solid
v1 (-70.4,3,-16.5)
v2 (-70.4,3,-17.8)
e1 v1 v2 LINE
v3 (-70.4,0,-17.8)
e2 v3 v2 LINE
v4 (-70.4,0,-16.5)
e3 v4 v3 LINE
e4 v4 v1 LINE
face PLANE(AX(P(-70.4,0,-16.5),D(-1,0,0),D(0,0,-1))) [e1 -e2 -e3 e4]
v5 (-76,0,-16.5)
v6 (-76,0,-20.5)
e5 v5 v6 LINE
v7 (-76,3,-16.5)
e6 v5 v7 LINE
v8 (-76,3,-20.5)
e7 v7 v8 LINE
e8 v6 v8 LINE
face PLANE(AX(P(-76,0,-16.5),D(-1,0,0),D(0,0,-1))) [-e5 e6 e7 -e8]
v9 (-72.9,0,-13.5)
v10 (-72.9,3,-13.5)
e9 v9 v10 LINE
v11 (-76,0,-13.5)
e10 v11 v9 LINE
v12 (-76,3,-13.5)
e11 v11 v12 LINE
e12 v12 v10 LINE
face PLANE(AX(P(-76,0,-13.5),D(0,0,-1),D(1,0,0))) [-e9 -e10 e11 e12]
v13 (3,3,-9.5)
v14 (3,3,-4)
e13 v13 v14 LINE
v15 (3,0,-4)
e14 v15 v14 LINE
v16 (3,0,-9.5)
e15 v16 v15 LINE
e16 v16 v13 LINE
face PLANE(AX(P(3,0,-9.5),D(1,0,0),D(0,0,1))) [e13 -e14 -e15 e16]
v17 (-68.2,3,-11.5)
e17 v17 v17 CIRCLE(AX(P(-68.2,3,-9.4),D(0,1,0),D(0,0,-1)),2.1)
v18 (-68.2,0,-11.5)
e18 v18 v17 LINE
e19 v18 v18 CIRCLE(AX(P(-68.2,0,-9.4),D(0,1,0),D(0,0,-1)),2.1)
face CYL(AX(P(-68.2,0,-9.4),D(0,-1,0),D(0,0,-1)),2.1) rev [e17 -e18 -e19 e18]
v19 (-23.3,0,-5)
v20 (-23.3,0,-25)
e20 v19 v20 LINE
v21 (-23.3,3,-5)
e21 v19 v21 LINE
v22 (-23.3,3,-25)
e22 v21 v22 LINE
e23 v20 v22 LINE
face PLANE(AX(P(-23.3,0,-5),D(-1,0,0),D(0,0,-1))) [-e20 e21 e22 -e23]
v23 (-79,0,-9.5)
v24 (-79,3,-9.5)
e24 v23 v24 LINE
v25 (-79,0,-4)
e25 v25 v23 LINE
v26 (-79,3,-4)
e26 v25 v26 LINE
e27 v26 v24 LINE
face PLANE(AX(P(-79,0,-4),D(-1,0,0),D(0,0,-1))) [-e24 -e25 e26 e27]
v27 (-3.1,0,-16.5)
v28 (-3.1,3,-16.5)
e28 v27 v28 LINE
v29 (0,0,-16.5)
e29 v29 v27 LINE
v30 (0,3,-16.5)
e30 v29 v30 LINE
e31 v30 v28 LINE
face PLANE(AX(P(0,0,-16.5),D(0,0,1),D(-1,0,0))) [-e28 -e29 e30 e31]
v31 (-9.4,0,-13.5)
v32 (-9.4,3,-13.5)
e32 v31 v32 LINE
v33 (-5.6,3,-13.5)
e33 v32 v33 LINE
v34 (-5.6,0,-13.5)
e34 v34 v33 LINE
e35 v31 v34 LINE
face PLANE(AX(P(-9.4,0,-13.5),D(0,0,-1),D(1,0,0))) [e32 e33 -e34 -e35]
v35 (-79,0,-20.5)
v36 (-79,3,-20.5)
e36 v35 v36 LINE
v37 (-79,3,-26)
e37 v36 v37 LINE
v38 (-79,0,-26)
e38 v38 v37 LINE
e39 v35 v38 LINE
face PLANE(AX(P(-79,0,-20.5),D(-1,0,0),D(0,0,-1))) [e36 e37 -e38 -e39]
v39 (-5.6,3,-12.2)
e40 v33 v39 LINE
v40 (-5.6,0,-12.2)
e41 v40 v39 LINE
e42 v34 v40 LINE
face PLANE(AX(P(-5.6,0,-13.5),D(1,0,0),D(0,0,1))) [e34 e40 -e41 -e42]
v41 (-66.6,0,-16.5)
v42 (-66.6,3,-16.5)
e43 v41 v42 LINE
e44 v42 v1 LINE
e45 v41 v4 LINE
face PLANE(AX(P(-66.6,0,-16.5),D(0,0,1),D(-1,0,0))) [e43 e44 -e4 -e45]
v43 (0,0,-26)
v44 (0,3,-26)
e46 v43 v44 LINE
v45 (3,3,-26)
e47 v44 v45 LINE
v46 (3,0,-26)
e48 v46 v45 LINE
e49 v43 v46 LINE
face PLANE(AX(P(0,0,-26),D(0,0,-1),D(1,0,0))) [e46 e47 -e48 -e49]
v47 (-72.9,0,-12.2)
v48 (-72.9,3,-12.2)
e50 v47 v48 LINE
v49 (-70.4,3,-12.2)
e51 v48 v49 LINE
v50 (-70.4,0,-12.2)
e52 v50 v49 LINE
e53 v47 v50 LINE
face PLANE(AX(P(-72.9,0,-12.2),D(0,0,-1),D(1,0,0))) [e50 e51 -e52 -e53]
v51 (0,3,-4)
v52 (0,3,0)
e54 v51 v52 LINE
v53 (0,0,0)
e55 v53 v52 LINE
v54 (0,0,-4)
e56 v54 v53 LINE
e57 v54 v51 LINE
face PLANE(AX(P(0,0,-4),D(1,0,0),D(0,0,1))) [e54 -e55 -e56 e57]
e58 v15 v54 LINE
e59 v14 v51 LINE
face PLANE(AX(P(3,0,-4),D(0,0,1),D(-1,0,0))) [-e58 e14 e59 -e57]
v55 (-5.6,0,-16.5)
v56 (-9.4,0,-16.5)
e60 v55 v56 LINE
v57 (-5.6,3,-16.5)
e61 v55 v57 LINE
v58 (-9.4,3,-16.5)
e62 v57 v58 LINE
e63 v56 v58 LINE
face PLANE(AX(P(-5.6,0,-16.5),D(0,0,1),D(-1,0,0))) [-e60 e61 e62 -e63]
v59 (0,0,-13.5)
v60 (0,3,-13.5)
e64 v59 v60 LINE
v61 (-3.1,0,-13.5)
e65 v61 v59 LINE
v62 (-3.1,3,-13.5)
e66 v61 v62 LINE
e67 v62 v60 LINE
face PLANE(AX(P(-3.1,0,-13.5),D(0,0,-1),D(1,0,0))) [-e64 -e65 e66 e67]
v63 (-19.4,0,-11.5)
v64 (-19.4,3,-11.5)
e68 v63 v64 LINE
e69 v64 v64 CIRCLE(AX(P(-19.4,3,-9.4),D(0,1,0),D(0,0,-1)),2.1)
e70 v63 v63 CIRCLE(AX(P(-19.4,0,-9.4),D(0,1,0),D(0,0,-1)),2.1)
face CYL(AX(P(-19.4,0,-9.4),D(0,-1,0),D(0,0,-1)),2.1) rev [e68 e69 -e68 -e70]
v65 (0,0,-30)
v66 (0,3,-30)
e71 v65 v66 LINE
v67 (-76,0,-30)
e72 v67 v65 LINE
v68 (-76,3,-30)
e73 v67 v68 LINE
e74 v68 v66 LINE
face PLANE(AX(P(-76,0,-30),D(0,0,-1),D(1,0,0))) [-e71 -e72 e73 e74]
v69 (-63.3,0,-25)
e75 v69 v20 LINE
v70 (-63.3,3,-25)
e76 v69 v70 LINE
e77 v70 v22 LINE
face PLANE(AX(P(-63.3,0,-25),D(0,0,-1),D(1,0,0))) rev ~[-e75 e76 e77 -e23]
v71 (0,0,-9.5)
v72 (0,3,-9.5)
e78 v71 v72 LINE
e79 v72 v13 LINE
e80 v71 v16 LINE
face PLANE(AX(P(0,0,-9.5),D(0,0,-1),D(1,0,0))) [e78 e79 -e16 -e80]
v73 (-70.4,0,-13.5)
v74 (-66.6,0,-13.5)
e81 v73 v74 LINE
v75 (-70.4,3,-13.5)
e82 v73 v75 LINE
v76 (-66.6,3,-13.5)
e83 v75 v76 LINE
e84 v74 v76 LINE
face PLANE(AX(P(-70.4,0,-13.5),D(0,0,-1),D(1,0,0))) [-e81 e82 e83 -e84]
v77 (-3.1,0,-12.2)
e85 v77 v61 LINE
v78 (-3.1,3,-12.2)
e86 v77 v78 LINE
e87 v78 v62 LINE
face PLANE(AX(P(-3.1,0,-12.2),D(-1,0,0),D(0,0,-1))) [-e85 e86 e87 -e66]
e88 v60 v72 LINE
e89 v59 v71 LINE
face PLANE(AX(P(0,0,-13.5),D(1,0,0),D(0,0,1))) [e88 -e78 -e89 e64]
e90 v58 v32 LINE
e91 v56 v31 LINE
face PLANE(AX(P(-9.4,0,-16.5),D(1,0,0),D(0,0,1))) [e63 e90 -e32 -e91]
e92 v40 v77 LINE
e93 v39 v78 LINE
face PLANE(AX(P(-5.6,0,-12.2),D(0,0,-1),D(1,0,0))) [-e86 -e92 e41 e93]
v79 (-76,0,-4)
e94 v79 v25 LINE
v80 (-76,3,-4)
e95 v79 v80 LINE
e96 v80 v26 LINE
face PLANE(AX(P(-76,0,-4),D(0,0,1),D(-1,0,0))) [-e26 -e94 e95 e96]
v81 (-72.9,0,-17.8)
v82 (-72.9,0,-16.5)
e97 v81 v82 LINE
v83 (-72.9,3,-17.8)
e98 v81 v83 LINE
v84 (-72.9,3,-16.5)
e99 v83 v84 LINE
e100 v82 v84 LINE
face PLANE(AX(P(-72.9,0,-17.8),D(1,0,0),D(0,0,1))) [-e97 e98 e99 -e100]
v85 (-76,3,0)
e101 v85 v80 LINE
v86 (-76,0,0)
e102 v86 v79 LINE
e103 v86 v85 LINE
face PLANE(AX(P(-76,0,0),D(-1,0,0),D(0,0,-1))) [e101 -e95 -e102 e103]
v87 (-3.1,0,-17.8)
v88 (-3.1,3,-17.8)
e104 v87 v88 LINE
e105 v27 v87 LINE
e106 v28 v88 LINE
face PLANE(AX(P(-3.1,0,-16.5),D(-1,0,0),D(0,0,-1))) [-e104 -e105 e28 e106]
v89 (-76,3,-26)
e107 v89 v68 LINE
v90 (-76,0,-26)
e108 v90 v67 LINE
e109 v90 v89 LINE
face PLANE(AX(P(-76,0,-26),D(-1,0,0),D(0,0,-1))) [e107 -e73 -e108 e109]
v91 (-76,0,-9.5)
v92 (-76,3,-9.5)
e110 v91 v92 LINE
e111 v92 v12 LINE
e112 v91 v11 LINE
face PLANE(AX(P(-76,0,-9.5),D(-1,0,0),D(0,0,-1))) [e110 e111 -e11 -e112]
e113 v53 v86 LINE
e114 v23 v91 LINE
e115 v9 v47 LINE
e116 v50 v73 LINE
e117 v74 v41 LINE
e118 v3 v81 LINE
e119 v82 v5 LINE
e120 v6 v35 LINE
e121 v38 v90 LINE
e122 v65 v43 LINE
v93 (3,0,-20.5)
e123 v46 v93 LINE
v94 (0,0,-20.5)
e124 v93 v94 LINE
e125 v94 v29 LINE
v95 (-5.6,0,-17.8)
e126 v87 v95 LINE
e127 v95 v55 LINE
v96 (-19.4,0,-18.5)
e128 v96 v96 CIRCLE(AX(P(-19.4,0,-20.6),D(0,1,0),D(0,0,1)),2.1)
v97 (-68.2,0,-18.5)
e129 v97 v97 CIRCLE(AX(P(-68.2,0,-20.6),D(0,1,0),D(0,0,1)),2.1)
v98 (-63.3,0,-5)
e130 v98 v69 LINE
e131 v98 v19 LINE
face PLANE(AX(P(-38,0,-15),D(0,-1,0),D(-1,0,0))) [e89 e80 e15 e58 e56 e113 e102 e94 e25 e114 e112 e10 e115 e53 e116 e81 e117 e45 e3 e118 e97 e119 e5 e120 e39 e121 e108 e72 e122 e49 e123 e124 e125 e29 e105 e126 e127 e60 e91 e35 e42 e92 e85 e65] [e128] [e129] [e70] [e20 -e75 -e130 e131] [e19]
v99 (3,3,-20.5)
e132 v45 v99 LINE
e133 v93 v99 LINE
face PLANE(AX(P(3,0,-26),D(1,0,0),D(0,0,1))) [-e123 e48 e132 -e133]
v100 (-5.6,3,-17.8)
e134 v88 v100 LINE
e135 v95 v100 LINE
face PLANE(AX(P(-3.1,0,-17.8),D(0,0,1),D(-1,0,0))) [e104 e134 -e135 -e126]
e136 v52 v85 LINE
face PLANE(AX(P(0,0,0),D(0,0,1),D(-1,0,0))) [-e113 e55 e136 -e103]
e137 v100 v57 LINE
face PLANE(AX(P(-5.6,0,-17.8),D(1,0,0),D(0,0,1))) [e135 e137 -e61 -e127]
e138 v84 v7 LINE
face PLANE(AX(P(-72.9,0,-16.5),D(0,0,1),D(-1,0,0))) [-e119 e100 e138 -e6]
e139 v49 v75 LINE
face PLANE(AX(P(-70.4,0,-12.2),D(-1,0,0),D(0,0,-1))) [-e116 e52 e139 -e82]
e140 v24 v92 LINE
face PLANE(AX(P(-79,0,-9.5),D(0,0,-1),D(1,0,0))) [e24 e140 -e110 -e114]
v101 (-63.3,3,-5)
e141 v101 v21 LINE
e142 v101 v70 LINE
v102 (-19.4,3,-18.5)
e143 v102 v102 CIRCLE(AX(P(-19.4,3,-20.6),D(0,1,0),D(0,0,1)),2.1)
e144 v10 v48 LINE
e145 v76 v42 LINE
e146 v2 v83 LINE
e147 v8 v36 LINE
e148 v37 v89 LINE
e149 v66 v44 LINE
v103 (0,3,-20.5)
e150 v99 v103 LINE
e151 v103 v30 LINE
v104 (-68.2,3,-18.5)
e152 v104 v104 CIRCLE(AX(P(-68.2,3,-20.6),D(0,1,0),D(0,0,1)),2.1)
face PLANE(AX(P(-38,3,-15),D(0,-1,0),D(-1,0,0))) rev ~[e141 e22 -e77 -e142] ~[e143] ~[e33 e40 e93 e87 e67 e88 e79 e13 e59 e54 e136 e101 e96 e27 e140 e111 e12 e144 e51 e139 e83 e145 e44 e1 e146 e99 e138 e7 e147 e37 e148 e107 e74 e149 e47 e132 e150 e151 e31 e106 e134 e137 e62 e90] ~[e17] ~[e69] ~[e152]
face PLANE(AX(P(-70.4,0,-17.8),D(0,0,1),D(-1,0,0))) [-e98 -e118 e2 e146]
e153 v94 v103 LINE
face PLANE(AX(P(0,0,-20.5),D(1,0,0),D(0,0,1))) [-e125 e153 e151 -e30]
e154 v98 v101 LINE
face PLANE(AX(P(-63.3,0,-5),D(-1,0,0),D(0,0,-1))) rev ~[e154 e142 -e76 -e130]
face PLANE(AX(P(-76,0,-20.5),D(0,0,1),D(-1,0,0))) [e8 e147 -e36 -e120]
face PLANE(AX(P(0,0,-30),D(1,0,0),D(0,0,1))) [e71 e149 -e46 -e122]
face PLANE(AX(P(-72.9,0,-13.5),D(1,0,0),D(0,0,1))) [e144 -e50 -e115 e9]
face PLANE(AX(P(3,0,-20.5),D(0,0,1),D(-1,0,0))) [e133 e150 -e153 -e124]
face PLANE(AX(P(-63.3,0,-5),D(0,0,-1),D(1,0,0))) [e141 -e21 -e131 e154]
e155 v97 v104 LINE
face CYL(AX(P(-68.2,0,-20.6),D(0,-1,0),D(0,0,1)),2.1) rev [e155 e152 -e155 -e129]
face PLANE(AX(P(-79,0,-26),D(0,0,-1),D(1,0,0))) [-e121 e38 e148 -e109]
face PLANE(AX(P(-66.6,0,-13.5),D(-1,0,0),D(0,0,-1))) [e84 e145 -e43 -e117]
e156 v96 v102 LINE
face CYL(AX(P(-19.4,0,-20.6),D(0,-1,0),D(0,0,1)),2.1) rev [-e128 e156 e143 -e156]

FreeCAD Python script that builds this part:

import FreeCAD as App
import Part
import Sketcher
from FreeCAD import Vector

doc = App.newDocument("Part")
body = doc.addObject("PartDesign::Body", "Body")

sketch1 = body.newObject("Sketcher::SketchObject", "Sketch")
sketch1.AttachmentSupport = (doc.getObject("XZ_Plane"), [""])
sketch1.MapMode = "FlatFace"
sketch1.addGeometry([
    Part.LineSegment(Vector(-76, 0, 0), Vector(0, 0, 0)),
    Part.LineSegment(Vector(0, 0, 0), Vector(0, -4, 0)),
    Part.LineSegment(Vector(0, -4, 0), Vector(3, -4, 0)),
    Part.LineSegment(Vector(3, -4, 0), Vector(3, -9.5, 0)),
    Part.LineSegment(Vector(3, -9.5, 0), Vector(0, -9.5, 0)),
    Part.LineSegment(Vector(0, -9.5, 0), Vector(0, -13.5, 0)),
    Part.LineSegment(Vector(0, -13.5, 0), Vector(-3.1, -13.5, 0)),
    Part.LineSegment(Vector(-3.1, -13.5, 0), Vector(-3.1, -12.2, 0)),
    Part.LineSegment(Vector(-3.1, -12.2, 0), Vector(-5.6, -12.2, 0)),
    Part.LineSegment(Vector(-5.6, -12.2, 0), Vector(-5.6, -13.5, 0)),
    Part.LineSegment(Vector(-5.6, -13.5, 0), Vector(-9.4, -13.5, 0)),
    Part.LineSegment(Vector(-9.4, -13.5, 0), Vector(-9.4, -16.5, 0)),
    Part.LineSegment(Vector(-9.4, -16.5, 0), Vector(-5.6, -16.5, 0)),
    Part.LineSegment(Vector(-5.6, -16.5, 0), Vector(-5.6, -17.8, 0)),
    Part.LineSegment(Vector(-5.6, -17.8, 0), Vector(-3.1, -17.8, 0)),
    Part.LineSegment(Vector(-3.1, -17.8, 0), Vector(-3.1, -16.5, 0)),
    Part.LineSegment(Vector(-3.1, -16.5, 0), Vector(0, -16.5, 0)),
    Part.LineSegment(Vector(0, -16.5, 0), Vector(0, -20.5, 0)),
    Part.LineSegment(Vector(0, -20.5, 0), Vector(3, -20.5, 0)),
    Part.LineSegment(Vector(3, -20.5, 0), Vector(3, -26, 0)),
    Part.LineSegment(Vector(3, -26, 0), Vector(0, -26, 0)),
    Part.LineSegment(Vector(0, -26, 0), Vector(0, -30, 0)),
    Part.LineSegment(Vector(0, -30, 0), Vector(-76, -30, 0)),
    Part.LineSegment(Vector(-76, -30, 0), Vector(-76, -26, 0)),
    Part.LineSegment(Vector(-76, -26, 0), Vector(-79, -26, 0)),
    Part.LineSegment(Vector(-79, -26, 0), Vector(-79, -20.5, 0)),
    Part.LineSegment(Vector(-79, -20.5, 0), Vector(-76, -20.5, 0)),
    Part.LineSegment(Vector(-76, -20.5, 0), Vector(-76, -16.5, 0)),
    Part.LineSegment(Vector(-76, -16.5, 0), Vector(-72.9, -16.5, 0)),
    Part.LineSegment(Vector(-72.9, -16.5, 0), Vector(-72.9, -17.8, 0)),
    Part.LineSegment(Vector(-72.9, -17.8, 0), Vector(-70.4, -17.8, 0)),
    Part.LineSegment(Vector(-70.4, -17.8, 0), Vector(-70.4, -16.5, 0)),
    Part.LineSegment(Vector(-70.4, -16.5, 0), Vector(-66.6, -16.5, 0)),
    Part.LineSegment(Vector(-66.6, -16.5, 0), Vector(-66.6, -13.5, 0)),
    Part.LineSegment(Vector(-66.6, -13.5, 0), Vector(-70.4, -13.5, 0)),
    Part.LineSegment(Vector(-70.4, -13.5, 0), Vector(-70.4, -12.2, 0)),
    Part.LineSegment(Vector(-70.4, -12.2, 0), Vector(-72.9, -12.2, 0)),
    Part.LineSegment(Vector(-72.9, -12.2, 0), Vector(-72.9, -13.5, 0)),
    Part.LineSegment(Vector(-72.9, -13.5, 0), Vector(-76, -13.5, 0)),
    Part.LineSegment(Vector(-76, -13.5, 0), Vector(-76, -9.5, 0)),
    Part.LineSegment(Vector(-76, -9.5, 0), Vector(-79, -9.5, 0)),
    Part.LineSegment(Vector(-79, -9.5, 0), Vector(-79, -4, 0)),
    Part.LineSegment(Vector(-79, -4, 0), Vector(-76, -4, 0)),
    Part.LineSegment(Vector(-76, -4, 0), Vector(-76, 0, 0)),
    Part.Circle(Vector(-19.4, -9.4, 0), Vector(0, 0, 1), 2.1),
    Part.Circle(Vector(-68.2, -9.4, 0), Vector(0, 0, 1), 2.1),
    Part.LineSegment(Vector(-63.3, -5, 0), Vector(-63.3, -25, 0)),
    Part.LineSegment(Vector(-63.3, -25, 0), Vector(-23.3, -25, 0)),
    Part.LineSegment(Vector(-23.3, -25, 0), Vector(-23.3, -5, 0)),
    Part.LineSegment(Vector(-23.3, -5, 0), Vector(-63.3, -5, 0)),
    Part.Circle(Vector(-19.4, -20.6, 0), Vector(0, 0, 1), 2.1),
    Part.Circle(Vector(-68.2, -20.6, 0), Vector(0, 0, 1), 2.1),
], False)
sketch1.addConstraint([
    Sketcher.Constraint("Coincident", 0, 2, 1, 1),
    Sketcher.Constraint("Coincident", 1, 2, 2, 1),
    Sketcher.Constraint("Coincident", 2, 2, 3, 1),
    Sketcher.Constraint("Coincident", 3, 2, 4, 1),
    Sketcher.Constraint("Coincident", 4, 2, 5, 1),
    Sketcher.Constraint("Coincident", 5, 2, 6, 1),
    Sketcher.Constraint("Coincident", 6, 2, 7, 1),
    Sketcher.Constraint("Coincident", 7, 2, 8, 1),
    Sketcher.Constraint("Coincident", 8, 2, 9, 1),
    Sketcher.Constraint("Coincident", 9, 2, 10, 1),
    Sketcher.Constraint("Coincident", 10, 2, 11, 1),
    Sketcher.Constraint("Coincident", 11, 2, 12, 1),
    Sketcher.Constraint("Coincident", 12, 2, 13, 1),
    Sketcher.Constraint("Coincident", 13, 2, 14, 1),
    Sketcher.Constraint("Coincident", 14, 2, 15, 1),
    Sketcher.Constraint("Coincident", 15, 2, 16, 1),
    Sketcher.Constraint("Coincident", 16, 2, 17, 1),
    Sketcher.Constraint("Coincident", 17, 2, 18, 1),
    Sketcher.Constraint("Coincident", 18, 2, 19, 1),
    Sketcher.Constraint("Coincident", 19, 2, 20, 1),
    Sketcher.Constraint("Coincident", 20, 2, 21, 1),
    Sketcher.Constraint("Coincident", 21, 2, 22, 1),
    Sketcher.Constraint("Coincident", 22, 2, 23, 1),
    Sketcher.Constraint("Coincident", 23, 2, 24, 1),
    Sketcher.Constraint("Coincident", 24, 2, 25, 1),
    Sketcher.Constraint("Coincident", 25, 2, 26, 1),
    Sketcher.Constraint("Coincident", 26, 2, 27, 1),
    Sketcher.Constraint("Coincident", 27, 2, 28, 1),
    Sketcher.Constraint("Coincident", 28, 2, 29, 1),
    Sketcher.Constraint("Coincident", 29, 2, 30, 1),
    Sketcher.Constraint("Coincident", 30, 2, 31, 1),
    Sketcher.Constraint("Coincident", 31, 2, 32, 1),
    Sketcher.Constraint("Coincident", 32, 2, 33, 1),
    Sketcher.Constraint("Coincident", 33, 2, 34, 1),
    Sketcher.Constraint("Coincident", 34, 2, 35, 1),
    Sketcher.Constraint("Coincident", 35, 2, 36, 1),
    Sketcher.Constraint("Coincident", 36, 2, 37, 1),
    Sketcher.Constraint("Coincident", 37, 2, 38, 1),
    Sketcher.Constraint("Coincident", 38, 2, 39, 1),
    Sketcher.Constraint("Coincident", 39, 2, 40, 1),
    Sketcher.Constraint("Coincident", 40, 2, 41, 1),
    Sketcher.Constraint("Coincident", 41, 2, 42, 1),
    Sketcher.Constraint("Coincident", 42, 2, 43, 1),
    Sketcher.Constraint("Coincident", 43, 2, 0, 1),
    Sketcher.Constraint("Coincident", 46, 2, 47, 1),
    Sketcher.Constraint("Coincident", 47, 2, 48, 1),
    Sketcher.Constraint("Coincident", 48, 2, 49, 1),
    Sketcher.Constraint("Coincident", 49, 2, 46, 1),
    Sketcher.Constraint("Horizontal", 0),
    Sketcher.Constraint("Vertical", 1),
    Sketcher.Constraint("Horizontal", 2),
    Sketcher.Constraint("Vertical", 3),
    Sketcher.Constraint("Horizontal", 4),
    Sketcher.Constraint("Vertical", 5),
    Sketcher.Constraint("Horizontal", 6),
    Sketcher.Constraint("Vertical", 7),
    Sketcher.Constraint("Horizontal", 8),
    Sketcher.Constraint("Vertical", 9),
    Sketcher.Constraint("Horizontal", 10),
    Sketcher.Constraint("Vertical", 11),
    Sketcher.Constraint("Horizontal", 12),
    Sketcher.Constraint("Vertical", 13),
    Sketcher.Constraint("Horizontal", 14),
    Sketcher.Constraint("Vertical", 15),
    Sketcher.Constraint("Horizontal", 16),
    Sketcher.Constraint("Vertical", 17),
    Sketcher.Constraint("Horizontal", 18),
    Sketcher.Constraint("Vertical", 19),
    Sketcher.Constraint("Horizontal", 20),
    Sketcher.Constraint("Vertical", 21),
    Sketcher.Constraint("Horizontal", 22),
    Sketcher.Constraint("Vertical", 23),
    Sketcher.Constraint("Horizontal", 24),
    Sketcher.Constraint("Vertical", 25),
    Sketcher.Constraint("Horizontal", 26),
    Sketcher.Constraint("Vertical", 27),
    Sketcher.Constraint("Horizontal", 28),
    Sketcher.Constraint("Vertical", 29),
    Sketcher.Constraint("Horizontal", 30),
    Sketcher.Constraint("Vertical", 31),
    Sketcher.Constraint("Horizontal", 32),
    Sketcher.Constraint("Vertical", 33),
    Sketcher.Constraint("Horizontal", 34),
    Sketcher.Constraint("Vertical", 35),
    Sketcher.Constraint("Horizontal", 36),
    Sketcher.Constraint("Vertical", 37),
    Sketcher.Constraint("Horizontal", 38),
    Sketcher.Constraint("Vertical", 39),
    Sketcher.Constraint("Horizontal", 40),
    Sketcher.Constraint("Vertical", 41),
    Sketcher.Constraint("Horizontal", 42),
    Sketcher.Constraint("Vertical", 43),
    Sketcher.Constraint("Vertical", 46),
    Sketcher.Constraint("Horizontal", 47),
    Sketcher.Constraint("Vertical", 48),
    Sketcher.Constraint("Horizontal", 49),
    Sketcher.Constraint("Coincident", 0, 2, -1, 1),
    Sketcher.Constraint("Equal", 44, 45),
    Sketcher.Constraint("Equal", 45, 50),
    Sketcher.Constraint("Equal", 50, 51),
    Sketcher.Constraint("PointOnObject", 4, 2, -2),
    Sketcher.Constraint("PointOnObject", 16, 2, -2),
    Sketcher.Constraint("PointOnObject", 20, 2, -2),
    Sketcher.Constraint("Horizontal", 44, 3, 45, 3),
    Sketcher.Constraint("Horizontal", 50, 3, 51, 3),
    Sketcher.Constraint("Horizontal", 6, 2, 9, 2),
    Sketcher.Constraint("Horizontal", 12, 2, 15, 2),
    Sketcher.Constraint("Horizontal", 20, 2, 23, 2),
    Sketcher.Constraint("Horizontal", 18, 2, 25, 2),
    Sketcher.Constraint("Horizontal", 16, 2, 27, 2),
    Sketcher.Constraint("Horizontal", 14, 2, 29, 2),
    Sketcher.Constraint("Horizontal", 28, 2, 31, 2),
    Sketcher.Constraint("Horizontal", 10, 2, 33, 2),
    Sketcher.Constraint("Horizontal", 8, 2, 35, 2),
    Sketcher.Constraint("Horizontal", 34, 2, 37, 2),
    Sketcher.Constraint("Horizontal", 4, 2, 39, 2),
    Sketcher.Constraint("Horizontal", 2, 2, 41, 2),
    Sketcher.Constraint("Vertical", 44, 3, 50, 3),
    Sketcher.Constraint("Vertical", 45, 3, 51, 3),
    Sketcher.Constraint("Vertical", 9, 2, 12, 2),
    Sketcher.Constraint("Vertical", 7, 2, 14, 2),
    Sketcher.Constraint("Vertical", 3, 2, 18, 2),
    Sketcher.Constraint("Vertical", 23, 2, 26, 2),
    Sketcher.Constraint("Vertical", 31, 2, 34, 2),
    Sketcher.Constraint("Vertical", 29, 2, 36, 2),
    Sketcher.Constraint("Vertical", 27, 2, 38, 2),
    Sketcher.Constraint("Vertical", 25, 2, 40, 2),
    Sketcher.Constraint("Vertical", 39, 2, 42, 2),
    Sketcher.Constraint("Equal", 20, 24),
    Sketcher.Constraint("Equal", 16, 28),
    Sketcher.Constraint("Equal", 14, 30),
    Sketcher.Constraint("Equal", 12, 32),
    Sketcher.Constraint("Equal", 1, 5),
    Sketcher.Constraint("Equal", 42, 11),
    Sketcher.Constraint("Equal", 9, 13),
    Sketcher.Constraint("Equal", 5, 17),
    Sketcher.Constraint("Equal", 3, 19),
    Sketcher.Constraint("Equal", 17, 21),
    Sketcher.Constraint("Diameter", 44, 4.2),
    Sketcher.Constraint("DistanceX", 0, 1, 0, 2, 76.0),
    Sketcher.Constraint("DistanceX", 2, 1, 2, 2, 3.0),
    Sketcher.Constraint("DistanceX", 47, 1, 47, 2, 40.0),
    Sketcher.Constraint("DistanceY", 1, 2, 1, 1, 4.0),
    Sketcher.Constraint("DistanceY", 46, 2, 46, 1, 20.0),
    Sketcher.Constraint("DistanceX", 6, 2, 6, 1, 3.1),
    Sketcher.Constraint("DistanceX", 8, 2, 8, 1, 2.5),
    Sketcher.Constraint("DistanceX", 10, 2, 10, 1, 3.8),
    Sketcher.Constraint("DistanceY", 3, 2, 3, 1, 5.5),
    Sketcher.Constraint("DistanceY", 7, 1, 7, 2, 1.3),
    Sketcher.Constraint("DistanceY", 46, 2, -1, 1, 25.0),
    Sketcher.Constraint("DistanceX", 44, 3, -1, 1, 19.4),
    Sketcher.Constraint("DistanceY", 44, 3, -1, 1, 9.4),
    Sketcher.Constraint("DistanceX", 45, 3, -1, 1, 68.2),
    Sketcher.Constraint("DistanceY", 50, 3, -1, 1, 20.6),
    Sketcher.Constraint("DistanceX", 46, 2, -1, 1, 63.3),
])
pad1 = body.newObject("PartDesign::Pad", "Pad")
pad1.Profile = sketch1
pad1.Length = 3
pad1.Reversed = True

doc.recompute()
